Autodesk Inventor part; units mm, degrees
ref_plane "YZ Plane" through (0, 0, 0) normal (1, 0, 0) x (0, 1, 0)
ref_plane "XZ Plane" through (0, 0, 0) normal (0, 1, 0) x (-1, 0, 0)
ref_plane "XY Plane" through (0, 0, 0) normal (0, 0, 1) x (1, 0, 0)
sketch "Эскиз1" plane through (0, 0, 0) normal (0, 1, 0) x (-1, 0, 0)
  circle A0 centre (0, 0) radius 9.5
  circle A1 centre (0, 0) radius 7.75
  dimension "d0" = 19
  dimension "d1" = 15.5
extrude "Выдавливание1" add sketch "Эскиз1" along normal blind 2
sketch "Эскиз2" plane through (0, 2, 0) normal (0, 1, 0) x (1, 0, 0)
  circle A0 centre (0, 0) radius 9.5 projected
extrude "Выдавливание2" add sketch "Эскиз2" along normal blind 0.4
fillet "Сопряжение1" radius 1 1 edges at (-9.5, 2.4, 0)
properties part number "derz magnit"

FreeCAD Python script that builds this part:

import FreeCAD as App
import Part
import Sketcher


def edges_at(feature, points):
    """Names of the edges that pass closest to the given points."""
    edges = feature.Shape.Edges
    near = lambda p: min(range(len(edges)), key=lambda i: edges[i].distToShape(Part.Vertex(*p))[0])
    return sorted({f"Edge{near(p) + 1}" for p in points})

doc = App.newDocument("Part")
body = doc.addObject("PartDesign::Body", "Body")

sketch1 = body.newObject("Sketcher::SketchObject", "Sketch")
sketch1.AttachmentSupport = (doc.getObject("XZ_Plane"), [""])
sketch1.MapMode = "FlatFace"
sketch1.addGeometry(Part.Circle(App.Vector(0, 0, 0), App.Vector(0, 0, 1), 10), False)
sketch1.addGeometry(Part.Circle(App.Vector(0, 0, 0), App.Vector(0, 0, 1), 8), False)
sketch1.addConstraint(Sketcher.Constraint("Coincident", 0, 3, -1, 1))
sketch1.addConstraint(Sketcher.Constraint("Coincident", 1, 3, -1, 1))
sketch1.addConstraint(Sketcher.Constraint("Diameter", 0, 19.0))
sketch1.addConstraint(Sketcher.Constraint("Diameter", 1, 15.5))
pad1 = body.newObject("PartDesign::Pad", "Pad")
pad1.Profile = sketch1
pad1.Length = 2
pad1.Reversed = True

sketch2 = body.newObject("Sketcher::SketchObject", "Sketch001")
sketch2.AttachmentSupport = (doc.getObject("XZ_Plane"), [""])
sketch2.MapMode = "FlatFace"
sketch2.AttachmentOffset = App.Placement(App.Vector(0, 0, -2), App.Rotation())
sketch2.addGeometry(Part.Circle(App.Vector(0, 0, 0), App.Vector(0, 0, 1), 10), False)
sketch2.addConstraint(Sketcher.Constraint("Coincident", 0, 3, -1, 1))
sketch2.addConstraint(Sketcher.Constraint("Diameter", 0, 19.0))
pad2 = body.newObject("PartDesign::Pad", "Pad001")
pad2.Profile = sketch2
pad2.Length = 0.4
pad2.Reversed = True
doc.recompute()

fillet = body.newObject("PartDesign::Fillet", "Fillet")
fillet.Base = (pad2, edges_at(pad2, [(-9.5, 2.4, 0)]))
fillet.Radius = 1

doc.recompute()
